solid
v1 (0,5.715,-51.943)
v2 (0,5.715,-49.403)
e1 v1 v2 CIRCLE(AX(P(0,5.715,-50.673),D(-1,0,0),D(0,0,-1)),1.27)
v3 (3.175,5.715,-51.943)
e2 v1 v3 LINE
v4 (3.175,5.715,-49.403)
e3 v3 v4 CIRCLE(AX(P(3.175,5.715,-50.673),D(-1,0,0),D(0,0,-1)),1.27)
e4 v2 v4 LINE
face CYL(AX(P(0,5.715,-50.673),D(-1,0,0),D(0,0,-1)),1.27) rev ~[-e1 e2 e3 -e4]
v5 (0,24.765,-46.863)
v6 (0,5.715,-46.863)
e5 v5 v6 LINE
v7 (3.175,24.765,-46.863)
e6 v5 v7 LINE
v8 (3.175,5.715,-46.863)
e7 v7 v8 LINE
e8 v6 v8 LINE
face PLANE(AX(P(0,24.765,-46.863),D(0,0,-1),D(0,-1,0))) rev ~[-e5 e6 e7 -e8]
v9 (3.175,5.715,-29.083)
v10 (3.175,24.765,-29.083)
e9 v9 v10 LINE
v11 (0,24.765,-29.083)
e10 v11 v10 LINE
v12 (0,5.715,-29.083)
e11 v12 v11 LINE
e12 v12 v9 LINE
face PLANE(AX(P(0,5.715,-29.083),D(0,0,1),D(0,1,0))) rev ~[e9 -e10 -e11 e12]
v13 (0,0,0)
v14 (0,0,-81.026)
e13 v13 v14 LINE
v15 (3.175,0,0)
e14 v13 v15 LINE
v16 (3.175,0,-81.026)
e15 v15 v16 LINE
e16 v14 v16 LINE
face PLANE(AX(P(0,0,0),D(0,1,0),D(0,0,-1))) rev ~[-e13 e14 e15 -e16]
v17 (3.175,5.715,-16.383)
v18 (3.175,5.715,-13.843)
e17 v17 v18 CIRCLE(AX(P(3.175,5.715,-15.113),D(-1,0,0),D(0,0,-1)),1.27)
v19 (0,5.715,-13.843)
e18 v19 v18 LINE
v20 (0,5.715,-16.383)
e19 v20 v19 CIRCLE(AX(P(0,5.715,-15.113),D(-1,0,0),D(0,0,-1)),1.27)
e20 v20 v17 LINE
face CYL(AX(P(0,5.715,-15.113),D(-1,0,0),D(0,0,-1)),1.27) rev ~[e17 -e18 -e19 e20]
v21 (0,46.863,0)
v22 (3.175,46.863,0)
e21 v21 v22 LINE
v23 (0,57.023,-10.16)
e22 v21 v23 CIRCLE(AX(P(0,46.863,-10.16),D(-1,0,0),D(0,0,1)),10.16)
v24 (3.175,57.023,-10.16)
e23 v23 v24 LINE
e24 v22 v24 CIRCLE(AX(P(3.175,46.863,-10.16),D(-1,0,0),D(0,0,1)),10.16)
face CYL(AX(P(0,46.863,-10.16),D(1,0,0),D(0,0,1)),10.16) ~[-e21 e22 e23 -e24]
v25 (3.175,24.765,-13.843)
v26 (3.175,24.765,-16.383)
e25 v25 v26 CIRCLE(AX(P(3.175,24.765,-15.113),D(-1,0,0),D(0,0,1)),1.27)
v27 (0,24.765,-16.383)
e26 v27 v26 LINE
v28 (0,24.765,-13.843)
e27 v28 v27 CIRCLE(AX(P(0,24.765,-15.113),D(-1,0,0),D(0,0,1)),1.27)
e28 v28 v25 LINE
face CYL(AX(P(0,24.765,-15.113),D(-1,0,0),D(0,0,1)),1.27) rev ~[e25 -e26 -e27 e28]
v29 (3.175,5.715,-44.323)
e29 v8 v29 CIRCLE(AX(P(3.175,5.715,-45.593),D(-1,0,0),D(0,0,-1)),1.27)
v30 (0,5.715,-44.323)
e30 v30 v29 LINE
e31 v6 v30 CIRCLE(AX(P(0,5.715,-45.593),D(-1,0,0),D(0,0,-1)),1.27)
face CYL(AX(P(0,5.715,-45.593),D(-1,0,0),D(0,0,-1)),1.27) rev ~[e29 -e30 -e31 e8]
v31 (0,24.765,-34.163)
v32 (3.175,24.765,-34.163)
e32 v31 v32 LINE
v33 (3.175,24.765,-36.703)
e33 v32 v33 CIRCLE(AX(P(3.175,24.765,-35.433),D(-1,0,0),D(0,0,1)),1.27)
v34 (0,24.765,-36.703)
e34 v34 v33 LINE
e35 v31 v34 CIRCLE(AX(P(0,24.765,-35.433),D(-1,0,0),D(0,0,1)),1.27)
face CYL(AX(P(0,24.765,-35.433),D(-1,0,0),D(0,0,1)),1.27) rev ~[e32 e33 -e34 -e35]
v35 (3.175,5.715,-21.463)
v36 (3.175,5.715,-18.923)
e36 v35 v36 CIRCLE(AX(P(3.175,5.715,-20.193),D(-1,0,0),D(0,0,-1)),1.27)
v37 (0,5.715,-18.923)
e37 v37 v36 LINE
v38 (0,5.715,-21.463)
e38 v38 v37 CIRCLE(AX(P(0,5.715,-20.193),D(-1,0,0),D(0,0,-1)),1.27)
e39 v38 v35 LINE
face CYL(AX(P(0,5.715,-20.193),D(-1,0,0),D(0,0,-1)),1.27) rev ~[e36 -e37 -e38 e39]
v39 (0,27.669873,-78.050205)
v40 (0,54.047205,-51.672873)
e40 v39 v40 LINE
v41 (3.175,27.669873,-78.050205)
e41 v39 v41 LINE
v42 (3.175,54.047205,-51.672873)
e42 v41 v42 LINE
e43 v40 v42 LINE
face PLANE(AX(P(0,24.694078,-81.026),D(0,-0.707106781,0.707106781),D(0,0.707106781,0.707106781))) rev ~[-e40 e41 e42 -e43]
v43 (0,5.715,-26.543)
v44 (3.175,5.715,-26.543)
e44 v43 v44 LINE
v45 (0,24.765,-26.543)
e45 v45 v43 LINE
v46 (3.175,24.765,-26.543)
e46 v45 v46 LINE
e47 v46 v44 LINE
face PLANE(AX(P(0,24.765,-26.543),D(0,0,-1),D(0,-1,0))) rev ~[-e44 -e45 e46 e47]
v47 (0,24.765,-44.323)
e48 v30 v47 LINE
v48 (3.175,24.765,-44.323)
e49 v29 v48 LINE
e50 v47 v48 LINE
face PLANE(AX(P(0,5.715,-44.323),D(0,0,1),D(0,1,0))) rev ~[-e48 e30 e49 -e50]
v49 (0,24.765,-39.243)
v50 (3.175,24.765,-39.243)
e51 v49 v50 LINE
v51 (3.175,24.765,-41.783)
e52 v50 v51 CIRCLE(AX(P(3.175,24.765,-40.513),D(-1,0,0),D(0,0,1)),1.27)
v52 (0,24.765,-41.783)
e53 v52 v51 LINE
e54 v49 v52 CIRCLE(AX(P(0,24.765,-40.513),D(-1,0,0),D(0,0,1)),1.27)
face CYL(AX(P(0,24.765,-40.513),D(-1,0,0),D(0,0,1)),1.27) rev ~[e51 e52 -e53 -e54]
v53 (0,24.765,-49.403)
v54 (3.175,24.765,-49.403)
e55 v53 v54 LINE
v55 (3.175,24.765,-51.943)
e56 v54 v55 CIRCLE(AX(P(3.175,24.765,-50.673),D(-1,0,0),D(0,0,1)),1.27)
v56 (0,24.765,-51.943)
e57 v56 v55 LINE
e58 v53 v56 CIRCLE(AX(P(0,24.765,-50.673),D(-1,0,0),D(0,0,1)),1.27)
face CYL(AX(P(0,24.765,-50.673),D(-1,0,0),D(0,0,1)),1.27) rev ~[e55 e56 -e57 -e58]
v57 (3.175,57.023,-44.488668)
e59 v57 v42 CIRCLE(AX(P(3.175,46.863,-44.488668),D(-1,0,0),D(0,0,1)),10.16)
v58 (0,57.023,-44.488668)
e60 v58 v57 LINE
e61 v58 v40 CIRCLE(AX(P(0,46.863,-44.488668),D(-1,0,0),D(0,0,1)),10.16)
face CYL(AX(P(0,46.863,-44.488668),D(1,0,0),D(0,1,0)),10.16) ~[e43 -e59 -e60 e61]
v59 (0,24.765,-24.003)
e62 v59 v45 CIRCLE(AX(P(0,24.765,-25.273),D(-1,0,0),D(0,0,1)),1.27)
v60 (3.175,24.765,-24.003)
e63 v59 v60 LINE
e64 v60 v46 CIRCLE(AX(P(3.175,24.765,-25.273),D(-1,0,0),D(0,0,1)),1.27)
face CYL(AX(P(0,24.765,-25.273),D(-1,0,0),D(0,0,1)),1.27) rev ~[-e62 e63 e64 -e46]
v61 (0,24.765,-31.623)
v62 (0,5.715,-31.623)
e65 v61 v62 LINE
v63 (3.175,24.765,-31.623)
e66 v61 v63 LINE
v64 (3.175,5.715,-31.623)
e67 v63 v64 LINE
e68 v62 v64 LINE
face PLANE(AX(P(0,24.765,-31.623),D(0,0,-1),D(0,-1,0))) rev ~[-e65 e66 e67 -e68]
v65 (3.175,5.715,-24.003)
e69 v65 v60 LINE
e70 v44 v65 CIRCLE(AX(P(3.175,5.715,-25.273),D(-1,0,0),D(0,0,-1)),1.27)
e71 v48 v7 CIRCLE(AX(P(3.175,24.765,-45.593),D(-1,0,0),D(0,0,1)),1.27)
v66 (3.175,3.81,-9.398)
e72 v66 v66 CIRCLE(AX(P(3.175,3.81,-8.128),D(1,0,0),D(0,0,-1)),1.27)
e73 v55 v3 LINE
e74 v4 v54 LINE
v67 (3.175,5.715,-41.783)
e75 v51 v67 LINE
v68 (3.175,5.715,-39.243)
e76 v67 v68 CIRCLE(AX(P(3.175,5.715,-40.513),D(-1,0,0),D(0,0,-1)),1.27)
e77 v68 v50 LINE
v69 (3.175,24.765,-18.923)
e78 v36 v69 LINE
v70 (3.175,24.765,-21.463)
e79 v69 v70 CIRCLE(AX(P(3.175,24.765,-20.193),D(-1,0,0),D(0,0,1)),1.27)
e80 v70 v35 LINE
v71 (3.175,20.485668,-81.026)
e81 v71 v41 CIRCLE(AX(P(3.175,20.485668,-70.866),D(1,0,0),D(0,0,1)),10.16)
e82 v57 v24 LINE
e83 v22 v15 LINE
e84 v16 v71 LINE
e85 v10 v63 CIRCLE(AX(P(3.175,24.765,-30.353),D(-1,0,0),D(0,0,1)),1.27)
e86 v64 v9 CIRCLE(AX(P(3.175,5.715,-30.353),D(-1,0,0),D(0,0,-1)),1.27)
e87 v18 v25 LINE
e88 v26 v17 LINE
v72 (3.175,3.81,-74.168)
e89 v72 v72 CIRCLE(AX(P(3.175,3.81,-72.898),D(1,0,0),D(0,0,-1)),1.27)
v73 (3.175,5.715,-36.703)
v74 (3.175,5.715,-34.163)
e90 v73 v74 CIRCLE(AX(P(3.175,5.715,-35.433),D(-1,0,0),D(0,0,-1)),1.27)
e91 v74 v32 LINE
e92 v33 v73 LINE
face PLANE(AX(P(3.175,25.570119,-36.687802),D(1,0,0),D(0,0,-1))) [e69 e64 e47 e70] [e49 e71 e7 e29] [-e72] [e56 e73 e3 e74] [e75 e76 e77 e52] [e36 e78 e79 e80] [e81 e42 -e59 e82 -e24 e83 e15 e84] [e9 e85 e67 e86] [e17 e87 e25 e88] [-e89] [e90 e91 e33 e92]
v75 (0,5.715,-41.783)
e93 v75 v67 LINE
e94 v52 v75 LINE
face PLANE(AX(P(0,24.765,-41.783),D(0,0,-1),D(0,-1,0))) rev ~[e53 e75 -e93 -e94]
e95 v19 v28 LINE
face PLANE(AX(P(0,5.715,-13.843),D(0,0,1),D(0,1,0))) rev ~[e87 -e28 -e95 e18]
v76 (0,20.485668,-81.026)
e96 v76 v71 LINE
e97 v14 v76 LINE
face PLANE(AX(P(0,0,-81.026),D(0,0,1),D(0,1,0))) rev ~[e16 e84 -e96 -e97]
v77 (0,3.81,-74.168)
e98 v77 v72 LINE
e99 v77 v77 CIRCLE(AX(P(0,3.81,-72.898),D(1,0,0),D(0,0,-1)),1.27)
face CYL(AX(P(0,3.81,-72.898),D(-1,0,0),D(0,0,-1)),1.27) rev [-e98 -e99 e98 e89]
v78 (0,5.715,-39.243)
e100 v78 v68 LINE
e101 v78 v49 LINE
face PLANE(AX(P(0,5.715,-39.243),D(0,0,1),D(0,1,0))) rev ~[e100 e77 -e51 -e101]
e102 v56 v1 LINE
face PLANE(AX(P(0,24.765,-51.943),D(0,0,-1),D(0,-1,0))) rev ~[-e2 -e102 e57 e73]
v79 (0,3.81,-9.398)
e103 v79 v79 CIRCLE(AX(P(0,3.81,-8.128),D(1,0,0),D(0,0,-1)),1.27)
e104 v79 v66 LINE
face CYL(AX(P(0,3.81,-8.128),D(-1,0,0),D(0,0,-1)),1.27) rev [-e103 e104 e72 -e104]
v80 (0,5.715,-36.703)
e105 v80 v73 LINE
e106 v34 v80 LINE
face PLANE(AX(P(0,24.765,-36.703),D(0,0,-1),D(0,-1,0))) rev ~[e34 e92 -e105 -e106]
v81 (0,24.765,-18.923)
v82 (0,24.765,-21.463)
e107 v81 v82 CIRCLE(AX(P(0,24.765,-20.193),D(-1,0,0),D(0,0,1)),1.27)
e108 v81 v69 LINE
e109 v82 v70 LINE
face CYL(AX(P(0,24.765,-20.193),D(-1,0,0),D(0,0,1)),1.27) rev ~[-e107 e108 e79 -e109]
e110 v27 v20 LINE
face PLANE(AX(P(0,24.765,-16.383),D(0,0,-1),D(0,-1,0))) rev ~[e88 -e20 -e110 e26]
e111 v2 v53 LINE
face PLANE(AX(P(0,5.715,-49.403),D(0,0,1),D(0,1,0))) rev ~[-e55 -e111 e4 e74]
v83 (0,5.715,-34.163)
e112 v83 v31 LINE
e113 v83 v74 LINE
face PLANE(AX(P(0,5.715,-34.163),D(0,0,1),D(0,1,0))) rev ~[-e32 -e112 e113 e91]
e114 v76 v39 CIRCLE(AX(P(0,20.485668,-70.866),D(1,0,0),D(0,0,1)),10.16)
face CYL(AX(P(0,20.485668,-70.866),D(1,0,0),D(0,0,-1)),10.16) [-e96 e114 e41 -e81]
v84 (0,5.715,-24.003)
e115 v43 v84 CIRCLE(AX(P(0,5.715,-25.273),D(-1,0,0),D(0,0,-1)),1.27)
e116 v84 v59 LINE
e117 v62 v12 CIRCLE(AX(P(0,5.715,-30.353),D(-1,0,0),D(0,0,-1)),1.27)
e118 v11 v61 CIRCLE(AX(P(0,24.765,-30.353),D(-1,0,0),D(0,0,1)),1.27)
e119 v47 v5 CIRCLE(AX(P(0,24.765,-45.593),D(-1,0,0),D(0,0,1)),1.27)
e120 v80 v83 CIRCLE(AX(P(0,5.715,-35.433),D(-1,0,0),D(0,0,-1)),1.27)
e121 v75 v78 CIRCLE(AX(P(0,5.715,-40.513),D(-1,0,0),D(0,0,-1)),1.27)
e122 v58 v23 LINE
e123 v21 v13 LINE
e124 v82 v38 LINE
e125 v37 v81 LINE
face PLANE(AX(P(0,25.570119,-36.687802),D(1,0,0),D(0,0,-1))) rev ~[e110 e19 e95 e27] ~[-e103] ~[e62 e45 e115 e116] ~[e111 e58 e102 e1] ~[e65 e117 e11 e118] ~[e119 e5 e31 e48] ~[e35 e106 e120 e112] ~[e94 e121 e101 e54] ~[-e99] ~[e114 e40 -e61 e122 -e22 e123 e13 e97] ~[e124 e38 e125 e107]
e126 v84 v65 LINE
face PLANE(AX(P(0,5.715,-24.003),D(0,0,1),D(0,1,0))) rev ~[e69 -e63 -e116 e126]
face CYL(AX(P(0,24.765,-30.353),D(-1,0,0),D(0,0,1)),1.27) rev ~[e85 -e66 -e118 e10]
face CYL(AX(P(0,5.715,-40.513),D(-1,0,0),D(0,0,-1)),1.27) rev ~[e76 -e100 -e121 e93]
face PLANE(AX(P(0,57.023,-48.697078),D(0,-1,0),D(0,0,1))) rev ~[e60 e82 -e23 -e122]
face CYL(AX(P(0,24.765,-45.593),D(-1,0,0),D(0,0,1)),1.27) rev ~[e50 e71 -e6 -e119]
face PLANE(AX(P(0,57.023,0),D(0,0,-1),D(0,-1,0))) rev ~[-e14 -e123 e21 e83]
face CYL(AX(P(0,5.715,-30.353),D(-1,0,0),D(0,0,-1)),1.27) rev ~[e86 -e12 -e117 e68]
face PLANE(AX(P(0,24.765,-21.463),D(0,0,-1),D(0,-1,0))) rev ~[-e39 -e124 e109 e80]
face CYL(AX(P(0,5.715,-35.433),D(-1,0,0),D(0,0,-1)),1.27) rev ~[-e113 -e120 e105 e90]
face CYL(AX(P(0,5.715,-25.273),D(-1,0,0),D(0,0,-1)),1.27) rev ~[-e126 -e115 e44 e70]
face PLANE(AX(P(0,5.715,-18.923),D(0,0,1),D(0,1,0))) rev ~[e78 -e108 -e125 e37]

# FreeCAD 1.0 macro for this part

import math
import FreeCAD as App
import Part
import Sketcher
from FreeCAD import Vector
Q = App.Units.Quantity


def edges_at(feature, points):
    """Names of the edges that pass closest to the given points."""
    edges = feature.Shape.Edges
    near = lambda p: min(range(len(edges)), key=lambda i: edges[i].distToShape(Part.Vertex(*p))[0])
    return sorted({f"Edge{near(p) + 1}" for p in points})


def add_polygon(sketch, points):
    """Adds a closed chain of lines whose ends are joined by coincident constraints."""
    first, n = sketch.GeometryCount, len(points)
    for a, b in zip(points, points[1:] + points[:1]):
        sketch.addGeometry(Part.LineSegment(App.Vector(*a, 0), App.Vector(*b, 0)), False)
    for i in range(n):
        sketch.addConstraint(Sketcher.Constraint("Coincident", first + i, 2, first + (i + 1) % n, 1))

doc = App.newDocument("Part")
body = doc.addObject("PartDesign::Body", "Body")

# Sketch on YZ plane
sketch1 = doc.addObject("Sketcher::SketchObject", "Sketch")
body.addObject(sketch1)
sketch1.AttachmentSupport = (doc.YZ_Plane, [""])
sketch1.MapMode = "FlatFace"
add_polygon(sketch1, [(0, 0), (0, -81), (24.7, -81), (57, -48.7), (57, 0)])  # lines 0-4
sketch1.addGeometry(Part.Circle(Vector(3.8, -8.1, 0), Vector(0, 0, 1), 1.3), False)  # 5
sketch1.addGeometry(Part.Circle(Vector(3.8, -72.9, 0), Vector(0, 0, 1), 1.3), False)  # 6
sketch1.addGeometry(Part.ArcOfCircle(Part.Circle(Vector(24.8, -15.1, 0), Vector(0, 0, 1), 1.3), math.radians(-90), math.radians(90)), False)  # 7
sketch1.addGeometry(Part.LineSegment(Vector(24.8, -16.4, 0), Vector(5.7, -16.4, 0)), False)  # 8
sketch1.addGeometry(Part.ArcOfCircle(Part.Circle(Vector(5.7, -15.1, 0), Vector(0, 0, 1), 1.3), math.radians(90), math.radians(270)), False)  # 9
sketch1.addGeometry(Part.LineSegment(Vector(5.7, -13.8, 0), Vector(24.8, -13.8, 0)), False)  # 10
sketch1.addGeometry(Part.ArcOfCircle(Part.Circle(Vector(24.8, -20.2, 0), Vector(0, 0, 1), 1.3), math.radians(-90), math.radians(90)), False)  # 11
sketch1.addGeometry(Part.LineSegment(Vector(24.8, -21.5, 0), Vector(5.7, -21.5, 0)), False)  # 12
sketch1.addGeometry(Part.ArcOfCircle(Part.Circle(Vector(5.7, -20.2, 0), Vector(0, 0, 1), 1.3), math.radians(90), math.radians(270)), False)  # 13
sketch1.addGeometry(Part.LineSegment(Vector(5.7, -18.9, 0), Vector(24.8, -18.9, 0)), False)  # 14
sketch1.addGeometry(Part.ArcOfCircle(Part.Circle(Vector(24.8, -25.3, 0), Vector(0, 0, 1), 1.3), math.radians(-90), math.radians(90)), False)  # 15
sketch1.addGeometry(Part.LineSegment(Vector(24.8, -26.5, 0), Vector(5.7, -26.5, 0)), False)  # 16
sketch1.addGeometry(Part.ArcOfCircle(Part.Circle(Vector(5.7, -25.3, 0), Vector(0, 0, 1), 1.3), math.radians(90), math.radians(270)), False)  # 17
sketch1.addGeometry(Part.LineSegment(Vector(5.7, -24, 0), Vector(24.8, -24, 0)), False)  # 18
sketch1.addGeometry(Part.ArcOfCircle(Part.Circle(Vector(24.8, -30.4, 0), Vector(0, 0, 1), 1.3), math.radians(-90), math.radians(90)), False)  # 19
sketch1.addGeometry(Part.LineSegment(Vector(24.8, -31.6, 0), Vector(5.7, -31.6, 0)), False)  # 20
sketch1.addGeometry(Part.ArcOfCircle(Part.Circle(Vector(5.7, -30.4, 0), Vector(0, 0, 1), 1.3), math.radians(90), math.radians(270)), False)  # 21
sketch1.addGeometry(Part.LineSegment(Vector(5.7, -29.1, 0), Vector(24.8, -29.1, 0)), False)  # 22
sketch1.addGeometry(Part.ArcOfCircle(Part.Circle(Vector(24.8, -35.4, 0), Vector(0, 0, 1), 1.3), math.radians(-90), math.radians(90)), False)  # 23
sketch1.addGeometry(Part.LineSegment(Vector(24.8, -36.7, 0), Vector(5.7, -36.7, 0)), False)  # 24
sketch1.addGeometry(Part.ArcOfCircle(Part.Circle(Vector(5.7, -35.4, 0), Vector(0, 0, 1), 1.3), math.radians(90), math.radians(270)), False)  # 25
sketch1.addGeometry(Part.LineSegment(Vector(5.7, -34.2, 0), Vector(24.8, -34.2, 0)), False)  # 26
sketch1.addGeometry(Part.ArcOfCircle(Part.Circle(Vector(24.8, -40.5, 0), Vector(0, 0, 1), 1.3), math.radians(-90), math.radians(90)), False)  # 27
sketch1.addGeometry(Part.LineSegment(Vector(24.8, -41.8, 0), Vector(5.7, -41.8, 0)), False)  # 28
sketch1.addGeometry(Part.ArcOfCircle(Part.Circle(Vector(5.7, -40.5, 0), Vector(0, 0, 1), 1.3), math.radians(90), math.radians(270)), False)  # 29
sketch1.addGeometry(Part.LineSegment(Vector(5.7, -39.2, 0), Vector(24.8, -39.2, 0)), False)  # 30
sketch1.addGeometry(Part.ArcOfCircle(Part.Circle(Vector(24.8, -45.6, 0), Vector(0, 0, 1), 1.3), math.radians(-90), math.radians(90)), False)  # 31
sketch1.addGeometry(Part.LineSegment(Vector(24.8, -46.9, 0), Vector(5.7, -46.9, 0)), False)  # 32
sketch1.addGeometry(Part.ArcOfCircle(Part.Circle(Vector(5.7, -45.6, 0), Vector(0, 0, 1), 1.3), math.radians(90), math.radians(270)), False)  # 33
sketch1.addGeometry(Part.LineSegment(Vector(5.7, -44.3, 0), Vector(24.8, -44.3, 0)), False)  # 34
sketch1.addGeometry(Part.ArcOfCircle(Part.Circle(Vector(24.8, -50.7, 0), Vector(0, 0, 1), 1.3), math.radians(-90), math.radians(90)), False)  # 35
sketch1.addGeometry(Part.LineSegment(Vector(24.8, -51.9, 0), Vector(5.7, -51.9, 0)), False)  # 36
sketch1.addGeometry(Part.ArcOfCircle(Part.Circle(Vector(5.7, -50.7, 0), Vector(0, 0, 1), 1.3), math.radians(90), math.radians(270)), False)  # 37
sketch1.addGeometry(Part.LineSegment(Vector(5.7, -49.4, 0), Vector(24.8, -49.4, 0)), False)  # 38
sketch1.addConstraint(Sketcher.Constraint("Tangent", 7, 1, 8, 1))
sketch1.addConstraint(Sketcher.Constraint("Tangent", 8, 2, 9, 2))
sketch1.addConstraint(Sketcher.Constraint("Tangent", 9, 1, 10, 1))
sketch1.addConstraint(Sketcher.Constraint("Tangent", 10, 2, 7, 2))
sketch1.addConstraint(Sketcher.Constraint("Tangent", 11, 1, 12, 1))
sketch1.addConstraint(Sketcher.Constraint("Tangent", 12, 2, 13, 2))
sketch1.addConstraint(Sketcher.Constraint("Tangent", 13, 1, 14, 1))
sketch1.addConstraint(Sketcher.Constraint("Tangent", 14, 2, 11, 2))
sketch1.addConstraint(Sketcher.Constraint("Tangent", 15, 1, 16, 1))
sketch1.addConstraint(Sketcher.Constraint("Tangent", 16, 2, 17, 2))
sketch1.addConstraint(Sketcher.Constraint("Tangent", 17, 1, 18, 1))
sketch1.addConstraint(Sketcher.Constraint("Tangent", 18, 2, 15, 2))
sketch1.addConstraint(Sketcher.Constraint("Tangent", 19, 1, 20, 1))
sketch1.addConstraint(Sketcher.Constraint("Tangent", 20, 2, 21, 2))
sketch1.addConstraint(Sketcher.Constraint("Tangent", 21, 1, 22, 1))
sketch1.addConstraint(Sketcher.Constraint("Tangent", 22, 2, 19, 2))
sketch1.addConstraint(Sketcher.Constraint("Tangent", 23, 1, 24, 1))
sketch1.addConstraint(Sketcher.Constraint("Tangent", 24, 2, 25, 2))
sketch1.addConstraint(Sketcher.Constraint("Tangent", 25, 1, 26, 1))
sketch1.addConstraint(Sketcher.Constraint("Tangent", 26, 2, 23, 2))
sketch1.addConstraint(Sketcher.Constraint("Tangent", 27, 1, 28, 1))
sketch1.addConstraint(Sketcher.Constraint("Tangent", 28, 2, 29, 2))
sketch1.addConstraint(Sketcher.Constraint("Tangent", 29, 1, 30, 1))
sketch1.addConstraint(Sketcher.Constraint("Tangent", 30, 2, 27, 2))
sketch1.addConstraint(Sketcher.Constraint("Tangent", 31, 1, 32, 1))
sketch1.addConstraint(Sketcher.Constraint("Tangent", 32, 2, 33, 2))
sketch1.addConstraint(Sketcher.Constraint("Tangent", 33, 1, 34, 1))
sketch1.addConstraint(Sketcher.Constraint("Tangent", 34, 2, 31, 2))
sketch1.addConstraint(Sketcher.Constraint("Tangent", 35, 1, 36, 1))
sketch1.addConstraint(Sketcher.Constraint("Tangent", 36, 2, 37, 2))
sketch1.addConstraint(Sketcher.Constraint("Tangent", 37, 1, 38, 1))
sketch1.addConstraint(Sketcher.Constraint("Tangent", 38, 2, 35, 2))
sketch1.addConstraint(Sketcher.Constraint("Vertical", 0))
sketch1.addConstraint(Sketcher.Constraint("Horizontal", 1))
sketch1.addConstraint(Sketcher.Constraint("Vertical", 3))
sketch1.addConstraint(Sketcher.Constraint("Horizontal", 4))
sketch1.addConstraint(Sketcher.Constraint("Horizontal", 8))
sketch1.addConstraint(Sketcher.Constraint("Horizontal", 10))
sketch1.addConstraint(Sketcher.Constraint("Horizontal", 12))
sketch1.addConstraint(Sketcher.Constraint("Horizontal", 14))
sketch1.addConstraint(Sketcher.Constraint("Horizontal", 16))
sketch1.addConstraint(Sketcher.Constraint("Horizontal", 18))
sketch1.addConstraint(Sketcher.Constraint("Horizontal", 20))
sketch1.addConstraint(Sketcher.Constraint("Horizontal", 22))
sketch1.addConstraint(Sketcher.Constraint("Horizontal", 24))
sketch1.addConstraint(Sketcher.Constraint("Horizontal", 26))
sketch1.addConstraint(Sketcher.Constraint("Horizontal", 28))
sketch1.addConstraint(Sketcher.Constraint("Horizontal", 30))
sketch1.addConstraint(Sketcher.Constraint("Horizontal", 32))
sketch1.addConstraint(Sketcher.Constraint("Horizontal", 34))
sketch1.addConstraint(Sketcher.Constraint("Horizontal", 36))
sketch1.addConstraint(Sketcher.Constraint("Horizontal", 38))
sketch1.addConstraint(Sketcher.Constraint("Coincident", 4, 2, -1, 1))
sketch1.addConstraint(Sketcher.Constraint("Equal", 5, 6))
sketch1.addConstraint(Sketcher.Constraint("Equal", 6, 7))
sketch1.addConstraint(Sketcher.Constraint("Equal", 9, 11))
sketch1.addConstraint(Sketcher.Constraint("Equal", 13, 15))
sketch1.addConstraint(Sketcher.Constraint("Equal", 17, 19))
sketch1.addConstraint(Sketcher.Constraint("Equal", 21, 23))
sketch1.addConstraint(Sketcher.Constraint("Equal", 25, 27))
sketch1.addConstraint(Sketcher.Constraint("Equal", 29, 31))
sketch1.addConstraint(Sketcher.Constraint("Equal", 33, 35))
sketch1.addConstraint(Sketcher.Constraint("Vertical", 5, 3, 6, 3))
sketch1.addConstraint(Sketcher.Constraint("Vertical", 7, 3, 11, 3))
sketch1.addConstraint(Sketcher.Constraint("Vertical", 9, 3, 13, 3))
sketch1.addConstraint(Sketcher.Constraint("Vertical", 11, 3, 15, 3))
sketch1.addConstraint(Sketcher.Constraint("Vertical", 13, 3, 17, 3))
sketch1.addConstraint(Sketcher.Constraint("Vertical", 15, 3, 19, 3))
sketch1.addConstraint(Sketcher.Constraint("Vertical", 17, 3, 21, 3))
sketch1.addConstraint(Sketcher.Constraint("Vertical", 19, 3, 23, 3))
sketch1.addConstraint(Sketcher.Constraint("Vertical", 21, 3, 25, 3))
sketch1.addConstraint(Sketcher.Constraint("Vertical", 23, 3, 27, 3))
sketch1.addConstraint(Sketcher.Constraint("Vertical", 25, 3, 29, 3))
sketch1.addConstraint(Sketcher.Constraint("Vertical", 27, 3, 31, 3))
sketch1.addConstraint(Sketcher.Constraint("Vertical", 29, 3, 33, 3))
sketch1.addConstraint(Sketcher.Constraint("Vertical", 31, 3, 35, 3))
sketch1.addConstraint(Sketcher.Constraint("Vertical", 33, 3, 37, 3))
sketch1.addConstraint(Sketcher.Constraint("Diameter", 5, Q("0.1 in")))
sketch1.addConstraint(Sketcher.Constraint("Angle", 2, Q("45 deg")))
sketch1.addConstraint(Sketcher.Constraint("Distance", 2, Q("1.8 in")))
sketch1.addConstraint(Sketcher.Constraint("DistanceX", 8, 2, 8, 1, Q("0.75 in")))
sketch1.addConstraint(Sketcher.Constraint("DistanceY", 0, 2, 0, 1, Q("3.19 in")))
sketch1.addConstraint(Sketcher.Constraint("DistanceY", 11, 3, 7, 3, Q("0.2 in")))
sketch1.addConstraint(Sketcher.Constraint("DistanceY", 15, 3, 11, 3, Q("0.2 in")))
sketch1.addConstraint(Sketcher.Constraint("DistanceY", 19, 3, 15, 3, Q("0.2 in")))
sketch1.addConstraint(Sketcher.Constraint("DistanceY", 23, 3, 19, 3, Q("0.2 in")))
sketch1.addConstraint(Sketcher.Constraint("DistanceY", 27, 3, 23, 3, Q("0.2 in")))
sketch1.addConstraint(Sketcher.Constraint("DistanceY", 31, 3, 27, 3, Q("0.2 in")))
sketch1.addConstraint(Sketcher.Constraint("DistanceY", 35, 3, 31, 3, Q("0.2 in")))
sketch1.addConstraint(Sketcher.Constraint("DistanceX", 4, 2, 4, 1, Q("2.245 in")))
sketch1.addConstraint(Sketcher.Constraint("DistanceX", -1, 1, 5, 3, Q("0.15 in")))
sketch1.addConstraint(Sketcher.Constraint("DistanceY", 5, 3, -1, 1, Q("0.32 in")))
sketch1.addConstraint(Sketcher.Constraint("DistanceY", 6, 3, -1, 1, Q("2.87 in")))
sketch1.addConstraint(Sketcher.Constraint("DistanceX", 35, 3, 2, 2, Q("1.27 in")))
sketch1.addConstraint(Sketcher.Constraint("DistanceY", 7, 3, -1, 1, Q("0.595 in")))
pad1 = doc.addObject("PartDesign::Pad", "Pad")
body.addObject(pad1)
pad1.Profile = sketch1
pad1.Length = Q("0.125 in")
doc.recompute()

fillet = doc.addObject("PartDesign::Fillet", "Fillet")
body.addObject(fillet)
fillet.Base = (pad1, edges_at(pad1, [(1.587, 57.023, -48.697), (1.587, 24.694, -81.026), (1.587, 57.023, 0)]))
fillet.Radius = Q("0.4 in")

doc.recompute()
